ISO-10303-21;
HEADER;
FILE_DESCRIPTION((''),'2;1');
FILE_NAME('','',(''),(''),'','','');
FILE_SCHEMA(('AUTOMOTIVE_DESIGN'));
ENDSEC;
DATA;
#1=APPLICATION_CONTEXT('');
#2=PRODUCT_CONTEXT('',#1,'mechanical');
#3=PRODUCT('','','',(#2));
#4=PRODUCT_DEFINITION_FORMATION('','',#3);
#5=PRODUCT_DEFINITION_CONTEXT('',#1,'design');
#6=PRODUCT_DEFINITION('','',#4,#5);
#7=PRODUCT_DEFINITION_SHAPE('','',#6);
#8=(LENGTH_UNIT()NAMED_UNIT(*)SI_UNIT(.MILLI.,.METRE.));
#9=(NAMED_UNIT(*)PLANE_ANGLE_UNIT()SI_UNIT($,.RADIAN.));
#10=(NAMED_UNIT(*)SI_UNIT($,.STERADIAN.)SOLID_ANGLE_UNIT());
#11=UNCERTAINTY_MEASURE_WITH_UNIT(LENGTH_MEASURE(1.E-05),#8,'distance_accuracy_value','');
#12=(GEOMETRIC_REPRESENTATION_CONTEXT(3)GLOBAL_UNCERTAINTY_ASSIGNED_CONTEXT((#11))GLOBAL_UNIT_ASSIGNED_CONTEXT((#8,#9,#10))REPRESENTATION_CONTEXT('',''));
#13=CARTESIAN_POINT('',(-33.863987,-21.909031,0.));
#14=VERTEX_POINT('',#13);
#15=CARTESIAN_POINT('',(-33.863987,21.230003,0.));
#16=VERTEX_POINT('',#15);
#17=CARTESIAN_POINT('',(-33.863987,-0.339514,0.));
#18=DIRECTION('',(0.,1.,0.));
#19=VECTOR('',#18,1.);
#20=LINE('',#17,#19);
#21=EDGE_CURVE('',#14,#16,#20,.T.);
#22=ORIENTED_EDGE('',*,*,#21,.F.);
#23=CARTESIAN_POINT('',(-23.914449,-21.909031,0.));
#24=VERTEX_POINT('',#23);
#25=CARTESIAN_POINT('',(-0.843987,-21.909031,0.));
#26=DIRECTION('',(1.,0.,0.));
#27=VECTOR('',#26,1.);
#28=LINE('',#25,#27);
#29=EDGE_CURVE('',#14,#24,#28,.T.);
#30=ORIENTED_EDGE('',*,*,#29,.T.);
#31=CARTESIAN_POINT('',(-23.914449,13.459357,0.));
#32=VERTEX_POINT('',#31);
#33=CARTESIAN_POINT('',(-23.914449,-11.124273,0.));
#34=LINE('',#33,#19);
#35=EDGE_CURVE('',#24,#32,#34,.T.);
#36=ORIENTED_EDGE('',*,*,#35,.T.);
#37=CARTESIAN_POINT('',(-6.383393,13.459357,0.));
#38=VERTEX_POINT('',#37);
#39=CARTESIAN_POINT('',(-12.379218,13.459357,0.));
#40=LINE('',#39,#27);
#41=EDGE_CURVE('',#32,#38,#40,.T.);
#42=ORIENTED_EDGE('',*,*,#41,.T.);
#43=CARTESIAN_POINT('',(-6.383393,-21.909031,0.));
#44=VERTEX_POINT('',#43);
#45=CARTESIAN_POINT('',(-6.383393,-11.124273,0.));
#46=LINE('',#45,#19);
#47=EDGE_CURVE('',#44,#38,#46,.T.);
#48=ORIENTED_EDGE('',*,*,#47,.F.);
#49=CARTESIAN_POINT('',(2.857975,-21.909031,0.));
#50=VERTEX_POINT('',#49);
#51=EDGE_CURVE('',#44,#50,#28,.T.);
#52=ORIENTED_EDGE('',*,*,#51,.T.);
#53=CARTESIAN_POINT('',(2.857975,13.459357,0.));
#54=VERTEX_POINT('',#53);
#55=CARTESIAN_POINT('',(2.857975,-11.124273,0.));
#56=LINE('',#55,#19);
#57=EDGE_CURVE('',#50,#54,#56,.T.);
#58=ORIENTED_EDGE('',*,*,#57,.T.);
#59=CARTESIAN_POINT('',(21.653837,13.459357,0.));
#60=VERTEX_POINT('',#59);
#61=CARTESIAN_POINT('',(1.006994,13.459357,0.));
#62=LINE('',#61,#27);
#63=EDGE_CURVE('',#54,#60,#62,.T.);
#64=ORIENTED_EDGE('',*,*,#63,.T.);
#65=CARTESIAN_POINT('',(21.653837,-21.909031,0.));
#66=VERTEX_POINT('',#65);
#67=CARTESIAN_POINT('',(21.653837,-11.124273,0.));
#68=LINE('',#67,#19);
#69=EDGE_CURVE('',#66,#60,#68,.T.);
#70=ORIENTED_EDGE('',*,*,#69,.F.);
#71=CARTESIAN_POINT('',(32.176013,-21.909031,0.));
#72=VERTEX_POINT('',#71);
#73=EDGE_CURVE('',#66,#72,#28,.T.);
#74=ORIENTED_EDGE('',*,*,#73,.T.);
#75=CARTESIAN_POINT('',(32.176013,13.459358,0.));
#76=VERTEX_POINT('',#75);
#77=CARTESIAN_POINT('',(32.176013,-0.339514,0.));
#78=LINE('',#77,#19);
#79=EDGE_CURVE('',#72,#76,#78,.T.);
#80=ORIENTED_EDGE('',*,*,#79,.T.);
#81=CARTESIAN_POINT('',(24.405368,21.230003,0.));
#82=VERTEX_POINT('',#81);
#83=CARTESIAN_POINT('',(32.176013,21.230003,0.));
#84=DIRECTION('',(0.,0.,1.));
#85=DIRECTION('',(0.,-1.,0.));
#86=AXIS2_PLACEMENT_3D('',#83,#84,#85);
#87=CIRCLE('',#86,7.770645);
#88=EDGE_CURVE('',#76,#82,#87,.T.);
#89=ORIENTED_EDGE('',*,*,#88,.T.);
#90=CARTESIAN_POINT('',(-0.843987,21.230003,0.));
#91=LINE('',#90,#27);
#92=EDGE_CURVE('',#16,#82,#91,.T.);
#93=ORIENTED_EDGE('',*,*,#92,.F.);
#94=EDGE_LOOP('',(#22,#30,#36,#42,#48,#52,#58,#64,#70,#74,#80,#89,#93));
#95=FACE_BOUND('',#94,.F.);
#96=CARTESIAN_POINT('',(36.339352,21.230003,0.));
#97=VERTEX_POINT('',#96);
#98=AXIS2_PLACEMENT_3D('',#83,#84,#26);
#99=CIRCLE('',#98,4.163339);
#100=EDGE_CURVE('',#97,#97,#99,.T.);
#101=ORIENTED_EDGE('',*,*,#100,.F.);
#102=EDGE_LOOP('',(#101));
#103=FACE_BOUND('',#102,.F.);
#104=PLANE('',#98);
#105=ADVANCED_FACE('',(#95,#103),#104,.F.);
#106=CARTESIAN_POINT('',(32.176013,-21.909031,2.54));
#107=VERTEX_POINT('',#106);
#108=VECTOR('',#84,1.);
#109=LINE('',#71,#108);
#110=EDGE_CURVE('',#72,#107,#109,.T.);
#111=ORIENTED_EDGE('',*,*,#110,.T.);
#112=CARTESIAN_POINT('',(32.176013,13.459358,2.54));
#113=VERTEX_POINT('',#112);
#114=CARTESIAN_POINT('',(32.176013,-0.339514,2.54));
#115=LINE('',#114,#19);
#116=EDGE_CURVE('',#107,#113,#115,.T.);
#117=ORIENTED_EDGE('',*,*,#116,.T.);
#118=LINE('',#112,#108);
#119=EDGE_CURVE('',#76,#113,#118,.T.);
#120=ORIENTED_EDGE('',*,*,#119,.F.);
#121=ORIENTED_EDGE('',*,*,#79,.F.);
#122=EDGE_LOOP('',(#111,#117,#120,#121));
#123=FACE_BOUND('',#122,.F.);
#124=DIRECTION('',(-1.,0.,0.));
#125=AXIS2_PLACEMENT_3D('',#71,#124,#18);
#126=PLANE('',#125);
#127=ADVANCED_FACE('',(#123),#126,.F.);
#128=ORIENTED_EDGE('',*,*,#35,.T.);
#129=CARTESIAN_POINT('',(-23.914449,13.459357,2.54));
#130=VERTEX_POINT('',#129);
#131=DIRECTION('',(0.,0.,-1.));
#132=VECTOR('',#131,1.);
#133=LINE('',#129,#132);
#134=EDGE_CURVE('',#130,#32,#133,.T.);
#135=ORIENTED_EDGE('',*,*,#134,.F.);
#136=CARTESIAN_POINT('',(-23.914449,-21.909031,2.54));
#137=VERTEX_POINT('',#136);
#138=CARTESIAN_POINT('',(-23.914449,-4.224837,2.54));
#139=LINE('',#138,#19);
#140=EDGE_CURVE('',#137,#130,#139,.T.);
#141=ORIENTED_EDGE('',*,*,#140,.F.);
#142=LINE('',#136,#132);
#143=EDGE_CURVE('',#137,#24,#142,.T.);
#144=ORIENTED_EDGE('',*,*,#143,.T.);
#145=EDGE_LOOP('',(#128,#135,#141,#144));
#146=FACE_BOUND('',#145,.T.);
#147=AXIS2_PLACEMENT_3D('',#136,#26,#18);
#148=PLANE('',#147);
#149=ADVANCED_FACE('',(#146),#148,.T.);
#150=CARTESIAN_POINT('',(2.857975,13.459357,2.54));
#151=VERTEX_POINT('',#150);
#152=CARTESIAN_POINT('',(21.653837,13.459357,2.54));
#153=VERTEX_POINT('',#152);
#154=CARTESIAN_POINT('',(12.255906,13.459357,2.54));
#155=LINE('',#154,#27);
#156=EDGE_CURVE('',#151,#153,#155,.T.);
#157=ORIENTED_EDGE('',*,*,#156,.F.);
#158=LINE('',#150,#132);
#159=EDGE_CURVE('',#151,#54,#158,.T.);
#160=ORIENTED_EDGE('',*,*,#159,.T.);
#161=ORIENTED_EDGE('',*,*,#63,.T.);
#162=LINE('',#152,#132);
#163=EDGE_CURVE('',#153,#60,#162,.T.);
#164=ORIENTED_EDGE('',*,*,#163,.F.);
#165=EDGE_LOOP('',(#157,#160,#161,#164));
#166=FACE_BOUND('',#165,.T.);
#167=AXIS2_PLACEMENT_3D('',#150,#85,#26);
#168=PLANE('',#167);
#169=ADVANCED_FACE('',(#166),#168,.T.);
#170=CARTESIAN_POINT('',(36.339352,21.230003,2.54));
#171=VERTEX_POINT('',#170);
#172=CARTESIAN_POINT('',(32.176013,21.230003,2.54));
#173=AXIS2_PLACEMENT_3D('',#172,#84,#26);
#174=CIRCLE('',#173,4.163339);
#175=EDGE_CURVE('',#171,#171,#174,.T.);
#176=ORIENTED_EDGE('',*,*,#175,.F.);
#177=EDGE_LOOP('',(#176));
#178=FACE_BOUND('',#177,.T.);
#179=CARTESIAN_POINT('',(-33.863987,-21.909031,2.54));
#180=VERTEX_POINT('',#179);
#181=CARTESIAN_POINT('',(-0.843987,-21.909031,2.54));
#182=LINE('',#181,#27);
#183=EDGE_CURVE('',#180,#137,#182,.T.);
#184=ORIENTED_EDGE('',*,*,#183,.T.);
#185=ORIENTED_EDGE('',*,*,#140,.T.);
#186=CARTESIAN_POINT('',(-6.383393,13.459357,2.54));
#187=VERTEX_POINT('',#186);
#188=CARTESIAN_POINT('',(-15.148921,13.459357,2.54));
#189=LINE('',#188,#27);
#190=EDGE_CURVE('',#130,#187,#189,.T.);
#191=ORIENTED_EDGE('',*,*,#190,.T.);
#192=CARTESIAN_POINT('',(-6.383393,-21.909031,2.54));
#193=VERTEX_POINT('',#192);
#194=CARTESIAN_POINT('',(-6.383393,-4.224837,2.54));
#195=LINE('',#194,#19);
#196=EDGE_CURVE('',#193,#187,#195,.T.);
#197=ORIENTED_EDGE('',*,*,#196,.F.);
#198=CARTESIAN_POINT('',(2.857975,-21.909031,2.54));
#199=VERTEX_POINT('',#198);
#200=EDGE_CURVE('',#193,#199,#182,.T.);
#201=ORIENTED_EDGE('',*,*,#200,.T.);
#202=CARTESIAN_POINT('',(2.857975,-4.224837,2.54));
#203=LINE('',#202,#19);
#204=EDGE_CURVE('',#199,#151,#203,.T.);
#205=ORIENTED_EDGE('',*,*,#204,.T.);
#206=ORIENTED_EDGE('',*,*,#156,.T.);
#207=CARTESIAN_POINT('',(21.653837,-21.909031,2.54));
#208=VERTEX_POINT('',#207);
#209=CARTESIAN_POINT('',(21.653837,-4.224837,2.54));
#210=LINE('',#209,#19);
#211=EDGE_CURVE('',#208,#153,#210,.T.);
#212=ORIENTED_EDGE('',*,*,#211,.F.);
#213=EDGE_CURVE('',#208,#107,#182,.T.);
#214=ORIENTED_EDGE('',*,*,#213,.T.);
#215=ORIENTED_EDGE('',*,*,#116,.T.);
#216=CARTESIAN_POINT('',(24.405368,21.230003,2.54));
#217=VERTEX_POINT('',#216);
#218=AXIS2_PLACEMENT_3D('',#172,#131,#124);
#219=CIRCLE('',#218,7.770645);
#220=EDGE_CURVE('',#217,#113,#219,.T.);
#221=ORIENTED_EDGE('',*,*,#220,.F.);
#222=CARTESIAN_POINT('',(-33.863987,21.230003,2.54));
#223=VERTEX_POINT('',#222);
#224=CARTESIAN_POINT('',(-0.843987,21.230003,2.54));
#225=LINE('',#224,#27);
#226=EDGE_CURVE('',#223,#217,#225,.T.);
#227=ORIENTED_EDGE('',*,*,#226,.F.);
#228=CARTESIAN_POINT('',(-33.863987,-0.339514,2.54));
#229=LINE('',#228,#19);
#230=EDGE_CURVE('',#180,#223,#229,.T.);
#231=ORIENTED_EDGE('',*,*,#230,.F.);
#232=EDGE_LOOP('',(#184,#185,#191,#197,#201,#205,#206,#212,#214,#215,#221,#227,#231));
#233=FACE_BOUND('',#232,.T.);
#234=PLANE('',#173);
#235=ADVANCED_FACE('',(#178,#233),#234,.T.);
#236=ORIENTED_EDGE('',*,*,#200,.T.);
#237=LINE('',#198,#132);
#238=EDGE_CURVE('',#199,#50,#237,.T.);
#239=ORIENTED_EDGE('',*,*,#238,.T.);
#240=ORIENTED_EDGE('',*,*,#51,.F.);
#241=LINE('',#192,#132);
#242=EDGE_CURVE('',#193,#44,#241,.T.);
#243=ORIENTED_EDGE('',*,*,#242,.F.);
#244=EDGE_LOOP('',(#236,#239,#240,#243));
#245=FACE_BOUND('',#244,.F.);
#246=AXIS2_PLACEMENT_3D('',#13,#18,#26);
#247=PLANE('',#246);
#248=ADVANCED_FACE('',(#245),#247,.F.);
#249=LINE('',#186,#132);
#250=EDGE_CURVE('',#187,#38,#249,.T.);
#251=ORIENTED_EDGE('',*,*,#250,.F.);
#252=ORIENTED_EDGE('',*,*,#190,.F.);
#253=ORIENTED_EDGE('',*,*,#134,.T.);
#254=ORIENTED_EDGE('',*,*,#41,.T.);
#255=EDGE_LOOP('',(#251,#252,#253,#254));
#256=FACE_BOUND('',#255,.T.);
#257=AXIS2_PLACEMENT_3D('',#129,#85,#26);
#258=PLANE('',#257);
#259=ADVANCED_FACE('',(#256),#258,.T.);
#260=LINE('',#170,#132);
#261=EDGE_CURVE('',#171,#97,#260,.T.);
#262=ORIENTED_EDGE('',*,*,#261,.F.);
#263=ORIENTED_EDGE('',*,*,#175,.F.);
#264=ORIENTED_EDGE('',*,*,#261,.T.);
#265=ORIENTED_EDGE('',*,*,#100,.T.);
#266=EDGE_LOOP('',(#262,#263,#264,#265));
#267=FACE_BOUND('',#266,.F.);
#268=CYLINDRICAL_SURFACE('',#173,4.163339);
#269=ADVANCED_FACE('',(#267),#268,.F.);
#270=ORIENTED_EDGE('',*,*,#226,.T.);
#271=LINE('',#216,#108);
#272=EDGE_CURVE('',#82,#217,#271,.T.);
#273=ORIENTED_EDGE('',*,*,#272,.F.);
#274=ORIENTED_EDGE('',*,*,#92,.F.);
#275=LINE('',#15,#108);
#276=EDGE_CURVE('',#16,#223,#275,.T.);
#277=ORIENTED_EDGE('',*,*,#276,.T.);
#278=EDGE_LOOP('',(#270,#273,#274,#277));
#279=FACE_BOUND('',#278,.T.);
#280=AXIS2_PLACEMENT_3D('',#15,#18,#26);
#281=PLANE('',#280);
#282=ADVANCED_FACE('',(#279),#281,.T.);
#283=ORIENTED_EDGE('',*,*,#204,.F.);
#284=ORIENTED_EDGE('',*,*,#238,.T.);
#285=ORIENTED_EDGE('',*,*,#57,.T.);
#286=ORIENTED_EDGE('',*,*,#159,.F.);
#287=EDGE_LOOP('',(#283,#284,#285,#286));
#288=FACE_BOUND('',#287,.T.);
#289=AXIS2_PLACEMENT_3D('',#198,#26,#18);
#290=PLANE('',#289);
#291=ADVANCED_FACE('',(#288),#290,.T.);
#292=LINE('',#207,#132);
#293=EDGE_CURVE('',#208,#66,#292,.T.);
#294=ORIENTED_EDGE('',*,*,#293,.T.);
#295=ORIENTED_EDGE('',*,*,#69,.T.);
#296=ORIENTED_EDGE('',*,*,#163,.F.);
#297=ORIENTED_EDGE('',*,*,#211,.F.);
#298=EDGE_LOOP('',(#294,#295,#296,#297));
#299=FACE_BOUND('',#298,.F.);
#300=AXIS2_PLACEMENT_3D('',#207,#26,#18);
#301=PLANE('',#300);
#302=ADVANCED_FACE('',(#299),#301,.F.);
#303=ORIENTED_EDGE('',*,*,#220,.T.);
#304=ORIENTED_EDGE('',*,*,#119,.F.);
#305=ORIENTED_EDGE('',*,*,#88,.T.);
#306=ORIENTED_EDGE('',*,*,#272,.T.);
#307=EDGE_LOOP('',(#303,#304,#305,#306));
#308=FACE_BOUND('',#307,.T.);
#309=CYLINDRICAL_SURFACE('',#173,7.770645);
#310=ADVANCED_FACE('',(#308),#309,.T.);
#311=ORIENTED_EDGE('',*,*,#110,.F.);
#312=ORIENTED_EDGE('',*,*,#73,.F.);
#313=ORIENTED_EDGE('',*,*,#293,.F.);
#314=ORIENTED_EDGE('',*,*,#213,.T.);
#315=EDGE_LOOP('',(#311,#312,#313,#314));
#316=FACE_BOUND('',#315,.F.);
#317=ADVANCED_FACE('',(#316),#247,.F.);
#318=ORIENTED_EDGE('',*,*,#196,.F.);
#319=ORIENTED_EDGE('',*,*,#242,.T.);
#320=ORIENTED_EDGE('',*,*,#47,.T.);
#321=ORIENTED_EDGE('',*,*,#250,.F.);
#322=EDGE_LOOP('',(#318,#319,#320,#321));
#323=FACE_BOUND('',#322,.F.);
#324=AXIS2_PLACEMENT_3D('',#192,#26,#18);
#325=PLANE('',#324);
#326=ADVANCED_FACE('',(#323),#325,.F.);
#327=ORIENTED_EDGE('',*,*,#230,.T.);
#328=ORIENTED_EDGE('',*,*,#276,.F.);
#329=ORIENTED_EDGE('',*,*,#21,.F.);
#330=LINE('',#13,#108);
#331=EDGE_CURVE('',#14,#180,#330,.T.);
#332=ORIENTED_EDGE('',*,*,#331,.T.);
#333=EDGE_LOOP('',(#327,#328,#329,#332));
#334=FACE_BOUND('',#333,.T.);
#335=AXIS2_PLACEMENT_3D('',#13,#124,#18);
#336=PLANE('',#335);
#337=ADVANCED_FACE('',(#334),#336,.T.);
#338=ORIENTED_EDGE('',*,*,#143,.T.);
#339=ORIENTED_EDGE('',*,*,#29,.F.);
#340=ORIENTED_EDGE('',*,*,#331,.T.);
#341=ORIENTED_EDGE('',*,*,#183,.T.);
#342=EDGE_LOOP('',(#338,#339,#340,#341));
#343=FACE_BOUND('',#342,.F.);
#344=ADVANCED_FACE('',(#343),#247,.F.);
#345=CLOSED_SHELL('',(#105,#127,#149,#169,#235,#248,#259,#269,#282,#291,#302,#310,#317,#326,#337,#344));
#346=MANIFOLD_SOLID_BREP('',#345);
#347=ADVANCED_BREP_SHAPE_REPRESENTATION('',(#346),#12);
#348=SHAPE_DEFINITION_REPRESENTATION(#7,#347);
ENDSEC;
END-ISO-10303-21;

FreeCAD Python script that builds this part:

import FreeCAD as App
import Part
import Sketcher
from FreeCAD import Vector
Q = App.Units.Quantity

doc = App.newDocument("Part")
params = doc.addObject("Spreadsheet::Sheet", "Params")
for row, (alias, value) in enumerate([
    ("sketch1_width", "2.6 in"),
    ("pad1_length", "0.1 in"),
    ("pocket1_length", "1 in"),
    ("pocket2_length", "1 in"),
    ("pad2_length", "0.1 in"),
    ("pocket3_length", "1 in"),
], start=1):
    params.set(f"A{row}", alias)
    params.set(f"B{row}", "=" + value)
    params.setAlias(f"B{row}", alias)

body = doc.addObject("PartDesign::Body", "Body")

# Sketch on XY plane
sketch1 = body.newObject("Sketcher::SketchObject", "Sketch")
sketch1.AttachmentSupport = (doc.getObject("XY_Plane"), [""])
sketch1.MapMode = "FlatFace"
sketch1.addGeometry([
    Part.LineSegment(Vector(-34, 21, 0), Vector(-34, -22, 0)),
    Part.LineSegment(Vector(-34, -22, 0), Vector(32, -22, 0)),
    Part.LineSegment(Vector(32, -22, 0), Vector(32, 21, 0)),
    Part.LineSegment(Vector(32, 21, 0), Vector(-34, 21, 0)),
], False)
sketch1.addConstraint([
    Sketcher.Constraint("Coincident", 0, 2, 1, 1),
    Sketcher.Constraint("Coincident", 1, 2, 2, 1),
    Sketcher.Constraint("Coincident", 2, 2, 3, 1),
    Sketcher.Constraint("Coincident", 3, 2, 0, 1),
    Sketcher.Constraint("Vertical", 0),
    Sketcher.Constraint("Horizontal", 1),
    Sketcher.Constraint("Vertical", 2),
    Sketcher.Constraint("Horizontal", 3),
    Sketcher.Constraint("DistanceX", 1, 1, 1, 2, Q("2.6 in")),
    Sketcher.Constraint("DistanceY", 0, 2, 0, 1, 43.139034),
    Sketcher.Constraint("DistanceY", 0, 2, -1, 1, 21.909031),
    Sketcher.Constraint("DistanceX", 0, 2, -1, 1, 33.863987),
])
sketch1.setExpression("Constraints[8]", "Params.sketch1_width")
pad1 = body.newObject("PartDesign::Pad", "Pad")
pad1.Profile = sketch1
pad1.setExpression("Length", "Params.pad1_length")

# Sketch on XY plane
sketch2 = body.newObject("Sketcher::SketchObject", "Sketch001")
sketch2.AttachmentSupport = (doc.getObject("XY_Plane"), [""])
sketch2.MapMode = "FlatFace"
sketch2.AttachmentOffset = App.Placement(Vector(0, 0, 0.1 * 25.4), App.Rotation())
sketch2.addGeometry([
    Part.LineSegment(Vector(3, 13, 0), Vector(3, -22, 0)),
    Part.LineSegment(Vector(3, -22, 0), Vector(22, -22, 0)),
    Part.LineSegment(Vector(22, -22, 0), Vector(22, 13, 0)),
    Part.LineSegment(Vector(22, 13, 0), Vector(3, 13, 0)),
], False)
sketch2.addConstraint([
    Sketcher.Constraint("Coincident", 0, 2, 1, 1),
    Sketcher.Constraint("Coincident", 1, 2, 2, 1),
    Sketcher.Constraint("Coincident", 2, 2, 3, 1),
    Sketcher.Constraint("Coincident", 3, 2, 0, 1),
    Sketcher.Constraint("Vertical", 0),
    Sketcher.Constraint("Horizontal", 1),
    Sketcher.Constraint("Vertical", 2),
    Sketcher.Constraint("Horizontal", 3),
    Sketcher.Constraint("DistanceX", 1, 1, 1, 2, 18.795862),
    Sketcher.Constraint("DistanceY", 0, 2, 0, 1, 35.368388),
    Sketcher.Constraint("DistanceY", 0, 2, -1, 1, 21.909031),
    Sketcher.Constraint("DistanceX", -1, 1, 0, 2, 2.857975),
])
pocket1 = body.newObject("PartDesign::Pocket", "Pocket")
pocket1.Profile = sketch2
pocket1.setExpression("Length", "Params.pocket1_length")

# Sketch on XY plane
sketch3 = body.newObject("Sketcher::SketchObject", "Sketch002")
sketch3.AttachmentSupport = (doc.getObject("XY_Plane"), [""])
sketch3.MapMode = "FlatFace"
sketch3.AttachmentOffset = App.Placement(Vector(0, 0, 0.1 * 25.4), App.Rotation())
sketch3.addGeometry([
    Part.LineSegment(Vector(-24, 13, 0), Vector(-24, -22, 0)),
    Part.LineSegment(Vector(-24, -22, 0), Vector(-6, -22, 0)),
    Part.LineSegment(Vector(-6, -22, 0), Vector(-6, 13, 0)),
    Part.LineSegment(Vector(-6, 13, 0), Vector(-24, 13, 0)),
], False)
sketch3.addConstraint([
    Sketcher.Constraint("Coincident", 0, 2, 1, 1),
    Sketcher.Constraint("Coincident", 1, 2, 2, 1),
    Sketcher.Constraint("Coincident", 2, 2, 3, 1),
    Sketcher.Constraint("Coincident", 3, 2, 0, 1),
    Sketcher.Constraint("Vertical", 0),
    Sketcher.Constraint("Horizontal", 1),
    Sketcher.Constraint("Vertical", 2),
    Sketcher.Constraint("Horizontal", 3),
    Sketcher.Constraint("DistanceX", 1, 1, 1, 2, 17.531056),
    Sketcher.Constraint("DistanceY", 0, 2, 0, 1, 35.368388),
    Sketcher.Constraint("DistanceX", 0, 2, -1, 1, 23.914449),
    Sketcher.Constraint("DistanceY", 0, 2, -1, 1, 21.909031),
])
pocket2 = body.newObject("PartDesign::Pocket", "Pocket001")
pocket2.Profile = sketch3
pocket2.setExpression("Length", "Params.pocket2_length")

# Sketch on XY plane
sketch4 = body.newObject("Sketcher::SketchObject", "Sketch003")
sketch4.AttachmentSupport = (doc.getObject("XY_Plane"), [""])
sketch4.MapMode = "FlatFace"
sketch4.AttachmentOffset = App.Placement(Vector(0, 0, 0.1 * 25.4), App.Rotation())
sketch4.addGeometry(Part.Circle(Vector(32, 21, 0), Vector(0, 0, 1), 8), False)
sketch4.addConstraint([
    Sketcher.Constraint("Diameter", 0, 15.54129),
    Sketcher.Constraint("DistanceX", -1, 1, 0, 3, 32.176013),
    Sketcher.Constraint("DistanceY", -1, 1, 0, 3, 21.230003),
])
pad2 = body.newObject("PartDesign::Pad", "Pad001")
pad2.Profile = sketch4
pad2.setExpression("Length", "Params.pad2_length")
pad2.Reversed = True

# Sketch on XY plane
sketch5 = body.newObject("Sketcher::SketchObject", "Sketch004")
sketch5.AttachmentSupport = (doc.getObject("XY_Plane"), [""])
sketch5.MapMode = "FlatFace"
sketch5.AttachmentOffset = App.Placement(Vector(0, 0, 0.1 * 25.4), App.Rotation())
sketch5.addGeometry(Part.Circle(Vector(32.2, 21.2, 0), Vector(0, 0, 1), 4.2), False)
sketch5.addConstraint([
    Sketcher.Constraint("Diameter", 0, 8.326678),
    Sketcher.Constraint("DistanceX", -1, 1, 0, 3, 32.176013),
    Sketcher.Constraint("DistanceY", -1, 1, 0, 3, 21.230003),
])
pocket3 = body.newObject("PartDesign::Pocket", "Pocket002")
pocket3.Profile = sketch5
pocket3.setExpression("Length", "Params.pocket3_length")

doc.recompute()
